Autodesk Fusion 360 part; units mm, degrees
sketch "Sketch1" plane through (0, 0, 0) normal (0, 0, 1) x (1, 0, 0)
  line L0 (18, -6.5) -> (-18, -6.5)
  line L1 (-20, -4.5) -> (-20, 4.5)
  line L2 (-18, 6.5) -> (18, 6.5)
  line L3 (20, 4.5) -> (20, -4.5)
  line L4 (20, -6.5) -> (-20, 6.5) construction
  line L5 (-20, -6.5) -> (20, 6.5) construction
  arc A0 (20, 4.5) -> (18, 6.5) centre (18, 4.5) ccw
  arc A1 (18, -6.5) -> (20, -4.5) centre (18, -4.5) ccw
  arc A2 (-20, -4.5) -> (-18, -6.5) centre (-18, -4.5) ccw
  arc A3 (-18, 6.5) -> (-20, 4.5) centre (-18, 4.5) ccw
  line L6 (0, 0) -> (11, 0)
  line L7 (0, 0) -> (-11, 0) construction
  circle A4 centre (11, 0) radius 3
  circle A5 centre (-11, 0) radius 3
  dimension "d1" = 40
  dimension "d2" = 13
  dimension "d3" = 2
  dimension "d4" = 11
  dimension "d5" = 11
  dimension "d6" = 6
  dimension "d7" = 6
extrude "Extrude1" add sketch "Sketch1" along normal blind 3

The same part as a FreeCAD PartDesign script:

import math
import FreeCAD as App
import Part
import Sketcher
from FreeCAD import Vector

doc = App.newDocument("Part")
body = doc.addObject("PartDesign::Body", "Body")

# Sketch on XY plane
sketch1 = doc.addObject("Sketcher::SketchObject", "Sketch")
body.addObject(sketch1)
sketch1.AttachmentSupport = (doc.XY_Plane, [""])
sketch1.MapMode = "FlatFace"
sketch1.addGeometry([
    Part.LineSegment(Vector(-18, -6.5, 0), Vector(18, -6.5, 0)),  # 0
    Part.ArcOfCircle(Part.Circle(Vector(18, -4.5, 0), Vector(0, 0, 1), 2), math.radians(-90), math.radians(0)),  # 1
    Part.LineSegment(Vector(20, -4.5, 0), Vector(20, 4.5, 0)),  # 2
    Part.ArcOfCircle(Part.Circle(Vector(18, 4.5, 0), Vector(0, 0, 1), 2), math.radians(0), math.radians(90)),  # 3
    Part.LineSegment(Vector(18, 6.5, 0), Vector(-18, 6.5, 0)),  # 4
    Part.ArcOfCircle(Part.Circle(Vector(-18, 4.5, 0), Vector(0, 0, 1), 2), math.radians(90), math.radians(180)),  # 5
    Part.LineSegment(Vector(-20, 4.5, 0), Vector(-20, -4.5, 0)),  # 6
    Part.ArcOfCircle(Part.Circle(Vector(-18, -4.5, 0), Vector(0, 0, 1), 2), math.radians(180), math.radians(270)),  # 7
    Part.Circle(Vector(-11, 0, 0), Vector(0, 0, 1), 3),  # 8
    Part.Circle(Vector(11, 0, 0), Vector(0, 0, 1), 3),  # 9
], False)
sketch1.addConstraint([
    Sketcher.Constraint("Tangent", 0, 2, 1, 1),
    Sketcher.Constraint("Tangent", 1, 2, 2, 1),
    Sketcher.Constraint("Tangent", 2, 2, 3, 1),
    Sketcher.Constraint("Tangent", 3, 2, 4, 1),
    Sketcher.Constraint("Tangent", 4, 2, 5, 1),
    Sketcher.Constraint("Tangent", 5, 2, 6, 1),
    Sketcher.Constraint("Tangent", 6, 2, 7, 1),
    Sketcher.Constraint("Tangent", 7, 2, 0, 1),
    Sketcher.Constraint("Horizontal", 0),
    Sketcher.Constraint("Vertical", 2),
    Sketcher.Constraint("Horizontal", 4),
    Sketcher.Constraint("Vertical", 6),
    Sketcher.Constraint("Equal", 1, 3),
    Sketcher.Constraint("Equal", 3, 5),
    Sketcher.Constraint("Equal", 5, 7),
    Sketcher.Constraint("Equal", 8, 9),
    Sketcher.Constraint("Symmetric", 1, 3, 5, 3, -1, 1),
    Sketcher.Constraint("Symmetric", 8, 3, 9, 3, -1, 1),
    Sketcher.Constraint("PointOnObject", 8, 3, -1),
    Sketcher.Constraint("Diameter", 8, 6.0),
    Sketcher.Constraint("Radius", 1, 2.0),
    Sketcher.Constraint("DistanceX", 8, 3, -1, 1, 11.0),
    Sketcher.Constraint("DistanceY", 0, 2, 3, 3, 11.0),
    Sketcher.Constraint("DistanceX", 0, 1, 0, 2, 36.0),
])
pad1 = doc.addObject("PartDesign::Pad", "Pad")
body.addObject(pad1)
pad1.Profile = sketch1
pad1.Length = 3

doc.recompute()
